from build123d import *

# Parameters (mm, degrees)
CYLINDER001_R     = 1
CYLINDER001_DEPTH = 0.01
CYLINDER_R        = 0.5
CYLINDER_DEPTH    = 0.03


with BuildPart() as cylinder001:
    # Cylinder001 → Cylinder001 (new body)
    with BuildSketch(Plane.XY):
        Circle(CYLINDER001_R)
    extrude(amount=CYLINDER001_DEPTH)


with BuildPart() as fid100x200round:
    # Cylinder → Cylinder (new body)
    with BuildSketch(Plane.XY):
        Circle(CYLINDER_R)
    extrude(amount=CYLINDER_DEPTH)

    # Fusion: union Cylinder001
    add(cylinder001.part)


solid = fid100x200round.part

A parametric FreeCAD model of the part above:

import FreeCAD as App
import Part
import Sketcher

V = App.Vector

doc = App.newDocument("Part")
body = doc.addObject("PartDesign::Body", "Body")

sketch1 = body.newObject("Sketcher::SketchObject", "Sketch")
sketch1.AttachmentSupport = (doc.getObject("XY_Plane"), [""])
sketch1.MapMode = "FlatFace"
sketch1.addGeometry(Part.Circle(V(0, 0, 0), V(0, 0, 1), 1), False)
sketch1.addConstraint(Sketcher.Constraint("Coincident", 0, 3, -1, 1))
sketch1.addConstraint(Sketcher.Constraint("Diameter", 0, 2.0))
pad1 = body.newObject("PartDesign::Pad", "Pad")
pad1.Profile = sketch1
pad1.Length = 0.01
body2 = doc.addObject("PartDesign::Body", "Body001")

sketch2 = body2.newObject("Sketcher::SketchObject", "Sketch001")
sketch2.AttachmentSupport = (doc.getObject("XY_Plane001"), [""])
sketch2.MapMode = "FlatFace"
sketch2.addGeometry(Part.Circle(V(0, 0, 0), V(0, 0, 1), 0.5), False)
sketch2.addConstraint(Sketcher.Constraint("Coincident", 0, 3, -1, 1))
sketch2.addConstraint(Sketcher.Constraint("Diameter", 0, 1.0))
pad2 = body2.newObject("PartDesign::Pad", "Pad001")
pad2.Profile = sketch2
pad2.Length = 0.03
doc.recompute()

boolean = body2.newObject("PartDesign::Boolean", "Boolean")
boolean.Type = "Fuse"
boolean.addObjects([body])

doc.recompute()
